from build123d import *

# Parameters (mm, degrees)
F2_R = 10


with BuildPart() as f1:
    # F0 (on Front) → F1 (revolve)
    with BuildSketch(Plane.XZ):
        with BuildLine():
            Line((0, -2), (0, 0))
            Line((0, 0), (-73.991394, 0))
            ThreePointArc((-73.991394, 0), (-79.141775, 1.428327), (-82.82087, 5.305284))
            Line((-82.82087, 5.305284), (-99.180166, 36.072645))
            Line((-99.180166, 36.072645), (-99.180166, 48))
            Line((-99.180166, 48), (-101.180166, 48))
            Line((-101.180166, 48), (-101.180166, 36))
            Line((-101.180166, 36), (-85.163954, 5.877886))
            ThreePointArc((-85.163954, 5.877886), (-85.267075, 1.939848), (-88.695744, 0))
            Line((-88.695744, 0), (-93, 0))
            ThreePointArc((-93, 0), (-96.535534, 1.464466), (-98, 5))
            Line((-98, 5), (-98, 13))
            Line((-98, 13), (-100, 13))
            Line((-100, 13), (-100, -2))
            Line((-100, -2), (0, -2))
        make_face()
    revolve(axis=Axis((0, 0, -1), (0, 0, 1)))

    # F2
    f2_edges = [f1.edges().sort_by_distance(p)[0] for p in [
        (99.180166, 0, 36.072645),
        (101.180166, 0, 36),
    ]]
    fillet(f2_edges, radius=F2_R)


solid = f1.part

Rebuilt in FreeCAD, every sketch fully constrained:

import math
import FreeCAD as App
import Part
import Sketcher
Q = App.Units.Quantity


def edges_at(feature, points):
    """Names of the edges that pass closest to the given points."""
    edges = feature.Shape.Edges
    near = lambda p: min(range(len(edges)), key=lambda i: edges[i].distToShape(Part.Vertex(*p))[0])
    return sorted({f"Edge{near(p) + 1}" for p in points})

doc = App.newDocument("Part")
body = doc.addObject("PartDesign::Body", "Body")

# Sketch on XZ plane
sketch1 = doc.addObject("Sketcher::SketchObject", "Sketch")
body.addObject(sketch1)
sketch1.AttachmentSupport = (doc.XZ_Plane, [""])
sketch1.MapMode = "FlatFace"
sketch1.addGeometry([
    Part.LineSegment(App.Vector(0, -2, 0), App.Vector(0, 0, 0)),  # 0
    Part.LineSegment(App.Vector(0, 0, 0), App.Vector(-74, 0, 0)),  # 1
    Part.ArcOfCircle(Part.Circle(App.Vector(-74, 10, 0), App.Vector(0, 0, 1), 10), math.radians(-152), math.radians(-90)),  # 2
    Part.LineSegment(App.Vector(-82.8, 5.3, 0), App.Vector(-99.2, 36.1, 0)),  # 3
    Part.LineSegment(App.Vector(-99.2, 36.1, 0), App.Vector(-99.2, 48, 0)),  # 4
    Part.LineSegment(App.Vector(-99.2, 48, 0), App.Vector(-101.2, 48, 0)),  # 5
    Part.LineSegment(App.Vector(-101.2, 48, 0), App.Vector(-101.2, 36, 0)),  # 6
    Part.LineSegment(App.Vector(-101.2, 36, 0), App.Vector(-85.2, 5.9, 0)),  # 7
    Part.ArcOfCircle(Part.Circle(App.Vector(-88.7, 4, 0), App.Vector(0, 0, 1), 4), math.radians(-90), math.radians(28)),  # 8
    Part.LineSegment(App.Vector(-88.7, 0, 0), App.Vector(-93, 0, 0)),  # 9
    Part.ArcOfCircle(Part.Circle(App.Vector(-93, 5, 0), App.Vector(0, 0, 1), 5), math.radians(180), math.radians(270)),  # 10
    Part.LineSegment(App.Vector(-98, 5, 0), App.Vector(-98, 13, 0)),  # 11
    Part.LineSegment(App.Vector(-98, 13, 0), App.Vector(-100, 13, 0)),  # 12
    Part.LineSegment(App.Vector(-100, 13, 0), App.Vector(-100, -2, 0)),  # 13
    Part.LineSegment(App.Vector(-100, -2, 0), App.Vector(0, -2, 0)),  # 14
], False)
sketch1.addConstraint([
    Sketcher.Constraint("Coincident", 0, 2, 1, 1),
    Sketcher.Constraint("Tangent", 1, 2, 2, 2),
    Sketcher.Constraint("Tangent", 2, 1, 3, 1),
    Sketcher.Constraint("Coincident", 3, 2, 4, 1),
    Sketcher.Constraint("Coincident", 4, 2, 5, 1),
    Sketcher.Constraint("Coincident", 5, 2, 6, 1),
    Sketcher.Constraint("Coincident", 6, 2, 7, 1),
    Sketcher.Constraint("Tangent", 7, 2, 8, 2),
    Sketcher.Constraint("Tangent", 8, 1, 9, 1),
    Sketcher.Constraint("Tangent", 9, 2, 10, 2),
    Sketcher.Constraint("Tangent", 10, 1, 11, 1),
    Sketcher.Constraint("Coincident", 11, 2, 12, 1),
    Sketcher.Constraint("Coincident", 12, 2, 13, 1),
    Sketcher.Constraint("Coincident", 13, 2, 14, 1),
    Sketcher.Constraint("Coincident", 14, 2, 0, 1),
    Sketcher.Constraint("Vertical", 0),
    Sketcher.Constraint("Horizontal", 1),
    Sketcher.Constraint("Vertical", 4),
    Sketcher.Constraint("Horizontal", 5),
    Sketcher.Constraint("Vertical", 6),
    Sketcher.Constraint("Horizontal", 9),
    Sketcher.Constraint("Vertical", 11),
    Sketcher.Constraint("Horizontal", 12),
    Sketcher.Constraint("Vertical", 13),
    Sketcher.Constraint("Horizontal", 14),
    Sketcher.Constraint("Coincident", 0, 2, -1, 1),
    Sketcher.Constraint("PointOnObject", 8, 1, -1),
    Sketcher.Constraint("Parallel", 3, 7),
    Sketcher.Constraint("Equal", 5, 12),
    Sketcher.Constraint("Equal", 12, 0),
    Sketcher.Constraint("Radius", 2, 10.0),
    Sketcher.Constraint("Radius", 8, 4.0),
    Sketcher.Constraint("Radius", 10, 5.0),
    Sketcher.Constraint("DistanceX", 5, 2, 5, 1, 2.0),
    Sketcher.Constraint("DistanceX", 14, 1, 14, 2, 100.0),
    Sketcher.Constraint("DistanceY", 6, 2, 6, 1, 12.0),
    Sketcher.Constraint("DistanceY", 11, 1, 11, 2, 8.0),
    Sketcher.Constraint("Angle", 3, Q("118 deg")),
    Sketcher.Constraint("DistanceY", -1, 1, 4, 2, 48.0),
    Sketcher.Constraint("Distance", 3, 34.846192),
    Sketcher.Constraint("DistanceX", 1, 2, 1, 1, 73.991394),
])
revolution = doc.addObject("PartDesign::Revolution", "Revolution")
body.addObject(revolution)
revolution.Profile = sketch1
revolution.ReferenceAxis = (sketch1, ["V_Axis"])
revolution.Angle = 360
doc.recompute()

fillet = doc.addObject("PartDesign::Fillet", "Fillet")
body.addObject(fillet)
fillet.Base = (revolution, edges_at(revolution, [(99.18, 0, 36.073), (101.18, 0, 36)]))
fillet.Radius = 10

doc.recompute()
